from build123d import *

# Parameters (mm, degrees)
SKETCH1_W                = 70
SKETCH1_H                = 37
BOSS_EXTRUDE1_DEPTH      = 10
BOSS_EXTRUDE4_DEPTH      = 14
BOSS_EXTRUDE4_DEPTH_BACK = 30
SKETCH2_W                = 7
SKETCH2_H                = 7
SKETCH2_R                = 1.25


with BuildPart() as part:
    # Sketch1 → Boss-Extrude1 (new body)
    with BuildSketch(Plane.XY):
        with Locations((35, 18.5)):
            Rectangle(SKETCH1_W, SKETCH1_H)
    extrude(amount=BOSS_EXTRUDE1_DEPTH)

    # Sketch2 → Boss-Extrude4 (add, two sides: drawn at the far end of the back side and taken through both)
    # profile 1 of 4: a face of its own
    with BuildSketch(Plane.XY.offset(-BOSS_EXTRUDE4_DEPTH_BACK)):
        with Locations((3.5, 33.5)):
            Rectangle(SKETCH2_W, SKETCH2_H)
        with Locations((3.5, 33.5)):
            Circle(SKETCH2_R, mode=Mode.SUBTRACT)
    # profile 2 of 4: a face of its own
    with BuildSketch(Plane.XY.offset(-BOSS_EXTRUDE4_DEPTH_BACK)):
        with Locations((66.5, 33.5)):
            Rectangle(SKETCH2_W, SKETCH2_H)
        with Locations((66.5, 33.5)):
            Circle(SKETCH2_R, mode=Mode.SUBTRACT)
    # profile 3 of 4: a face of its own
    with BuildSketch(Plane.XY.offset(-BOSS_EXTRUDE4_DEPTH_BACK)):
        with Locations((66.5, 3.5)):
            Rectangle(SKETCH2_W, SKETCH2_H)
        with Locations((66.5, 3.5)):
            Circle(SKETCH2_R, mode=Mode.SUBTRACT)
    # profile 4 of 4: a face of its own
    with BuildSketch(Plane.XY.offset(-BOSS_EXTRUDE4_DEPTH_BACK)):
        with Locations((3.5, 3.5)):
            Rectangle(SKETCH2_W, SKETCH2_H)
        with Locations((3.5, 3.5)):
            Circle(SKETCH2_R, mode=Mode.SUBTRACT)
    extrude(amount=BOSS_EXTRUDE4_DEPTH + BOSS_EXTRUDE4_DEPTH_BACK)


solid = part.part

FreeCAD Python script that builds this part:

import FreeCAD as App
import Part
import Sketcher
Q = App.Units.Quantity


def add_polygon(sketch, points):
    """Adds a closed chain of lines whose ends are joined by coincident constraints."""
    first, n = sketch.GeometryCount, len(points)
    for a, b in zip(points, points[1:] + points[:1]):
        sketch.addGeometry(Part.LineSegment(App.Vector(*a, 0), App.Vector(*b, 0)), False)
    for i in range(n):
        sketch.addConstraint(Sketcher.Constraint("Coincident", first + i, 2, first + (i + 1) % n, 1))

doc = App.newDocument("Part")
body = doc.addObject("PartDesign::Body", "Body")

# Sketch on XY plane
sketch1 = doc.addObject("Sketcher::SketchObject", "Sketch")
body.addObject(sketch1)
sketch1.AttachmentSupport = (doc.XY_Plane, [""])
sketch1.MapMode = "FlatFace"
add_polygon(sketch1, [(0, 37), (0, 0), (70, 0), (70, 37)])  # lines 0-3
sketch1.addConstraint([
    Sketcher.Constraint("Vertical", 0),
    Sketcher.Constraint("Horizontal", 1),
    Sketcher.Constraint("Vertical", 2),
    Sketcher.Constraint("Horizontal", 3),
    Sketcher.Constraint("Coincident", 0, 2, -1, 1),
    Sketcher.Constraint("DistanceX", 1, 1, 1, 2, Q("70 mm")),
    Sketcher.Constraint("DistanceY", 0, 2, 0, 1, Q("37 mm")),
])
pad1 = doc.addObject("PartDesign::Pad", "Pad")
body.addObject(pad1)
pad1.Profile = sketch1
pad1.Length = 10

# Sketch on XY plane
sketch2 = doc.addObject("Sketcher::SketchObject", "Sketch001")
body.addObject(sketch2)
sketch2.AttachmentSupport = (doc.XY_Plane, [""])
sketch2.MapMode = "FlatFace"
add_polygon(sketch2, [(0, 37), (0, 30), (7, 30), (7, 37)])  # lines 0-3
sketch2.addGeometry(Part.Circle(App.Vector(3.5, 33.5, 0), App.Vector(0, 0, 1), 1.2), False)  # 4
add_polygon(sketch2, [(63, 37), (63, 30), (70, 30), (70, 37)])  # lines 5-8
sketch2.addGeometry(Part.Circle(App.Vector(66.5, 33.5, 0), App.Vector(0, 0, 1), 1.2), False)  # 9
add_polygon(sketch2, [(63, 7), (63, 0), (70, 0), (70, 7)])  # lines 10-13
sketch2.addGeometry(Part.Circle(App.Vector(66.5, 3.5, 0), App.Vector(0, 0, 1), 1.2), False)  # 14
add_polygon(sketch2, [(0, 7), (0, 0), (7, 0), (7, 7)])  # lines 15-18
sketch2.addGeometry(Part.Circle(App.Vector(3.5, 3.5, 0), App.Vector(0, 0, 1), 1.2), False)  # 19
sketch2.addConstraint([
    Sketcher.Constraint("Vertical", 0),
    Sketcher.Constraint("Horizontal", 1),
    Sketcher.Constraint("Vertical", 2),
    Sketcher.Constraint("Horizontal", 3),
    Sketcher.Constraint("Vertical", 5),
    Sketcher.Constraint("Horizontal", 6),
    Sketcher.Constraint("Vertical", 7),
    Sketcher.Constraint("Horizontal", 8),
    Sketcher.Constraint("Vertical", 10),
    Sketcher.Constraint("Horizontal", 11),
    Sketcher.Constraint("Vertical", 12),
    Sketcher.Constraint("Horizontal", 13),
    Sketcher.Constraint("Vertical", 15),
    Sketcher.Constraint("Horizontal", 16),
    Sketcher.Constraint("Vertical", 17),
    Sketcher.Constraint("Horizontal", 18),
    Sketcher.Constraint("Coincident", 15, 2, -1, 1),
    Sketcher.Constraint("Equal", 4, 9),
    Sketcher.Constraint("Equal", 9, 14),
    Sketcher.Constraint("Equal", 14, 19),
    Sketcher.Constraint("PointOnObject", 0, 2, -2),
    Sketcher.Constraint("PointOnObject", 10, 2, -1),
    Sketcher.Constraint("Horizontal", 4, 3, 9, 3),
    Sketcher.Constraint("Horizontal", 14, 3, 19, 3),
    Sketcher.Constraint("Horizontal", 1, 2, 5, 2),
    Sketcher.Constraint("Horizontal", 3, 2, 7, 2),
    Sketcher.Constraint("Horizontal", 13, 2, 17, 2),
    Sketcher.Constraint("Vertical", 9, 3, 14, 3),
    Sketcher.Constraint("Vertical", 4, 3, 19, 3),
    Sketcher.Constraint("Vertical", 8, 2, 10, 2),
    Sketcher.Constraint("Vertical", 7, 2, 11, 2),
    Sketcher.Constraint("Vertical", 2, 2, 16, 2),
    Sketcher.Constraint("Equal", 3, 6),
    Sketcher.Constraint("Equal", 18, 0),
    Sketcher.Constraint("Equal", 7, 10),
    Sketcher.Constraint("Diameter", 4, Q("2.5 mm")),
    Sketcher.Constraint("DistanceX", 1, 1, 1, 2, Q("7 mm")),
    Sketcher.Constraint("DistanceY", -1, 1, 0, 2, Q("30 mm")),
    Sketcher.Constraint("DistanceX", -1, 1, 5, 2, Q("63 mm")),
    Sketcher.Constraint("DistanceX", 4, 3, 9, 3, Q("63 mm")),
    Sketcher.Constraint("DistanceY", 14, 3, 9, 3, Q("30 mm")),
    Sketcher.Constraint("DistanceX", -1, 1, 4, 3, Q("3.5 mm")),
    Sketcher.Constraint("DistanceY", -1, 1, 4, 3, Q("33.5 mm")),
])
pad2 = doc.addObject("PartDesign::Pad", "Pad001")
body.addObject(pad2)
pad2.Profile = sketch2
pad2.Type = "TwoLengths"
pad2.Length = 14
pad2.Length2 = 30

doc.recompute()
